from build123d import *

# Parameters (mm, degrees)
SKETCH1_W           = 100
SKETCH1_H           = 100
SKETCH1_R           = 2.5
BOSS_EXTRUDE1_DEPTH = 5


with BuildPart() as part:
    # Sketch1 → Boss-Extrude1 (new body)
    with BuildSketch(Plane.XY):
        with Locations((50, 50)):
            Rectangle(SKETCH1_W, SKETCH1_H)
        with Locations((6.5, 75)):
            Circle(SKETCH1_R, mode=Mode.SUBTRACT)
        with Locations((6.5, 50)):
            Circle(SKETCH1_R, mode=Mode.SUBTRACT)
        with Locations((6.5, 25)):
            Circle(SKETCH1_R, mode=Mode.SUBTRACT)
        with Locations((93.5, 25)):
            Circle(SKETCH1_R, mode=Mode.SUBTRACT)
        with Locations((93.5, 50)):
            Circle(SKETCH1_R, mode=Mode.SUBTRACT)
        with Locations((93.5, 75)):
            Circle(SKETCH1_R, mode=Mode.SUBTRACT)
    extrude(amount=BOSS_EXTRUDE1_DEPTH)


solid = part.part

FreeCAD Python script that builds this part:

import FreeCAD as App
import Part
import Sketcher

V = App.Vector
Q = App.Units.Quantity

doc = App.newDocument("Part")
body = doc.addObject("PartDesign::Body", "Body")

# Sketch on XY plane
sketch1 = doc.addObject("Sketcher::SketchObject", "Sketch")
body.addObject(sketch1)
sketch1.AttachmentSupport = (doc.XY_Plane, [""])
sketch1.MapMode = "FlatFace"
sketch1.addGeometry([
    Part.LineSegment(V(0, 100, 0), V(0, 0, 0)),  # 0
    Part.LineSegment(V(0, 0, 0), V(100, 0, 0)),  # 1
    Part.LineSegment(V(100, 0, 0), V(100, 100, 0)),  # 2
    Part.LineSegment(V(100, 100, 0), V(0, 100, 0)),  # 3
    Part.Circle(V(6.5, 25, 0), V(0, 0, 1), 2.5),  # 4
    Part.Circle(V(93.5, 25, 0), V(0, 0, 1), 2.5),  # 5
    Part.Circle(V(6.5, 50, 0), V(0, 0, 1), 2.5),  # 6
    Part.Circle(V(6.5, 75, 0), V(0, 0, 1), 2.5),  # 7
    Part.Circle(V(93.5, 50, 0), V(0, 0, 1), 2.5),  # 8
    Part.Circle(V(93.5, 75, 0), V(0, 0, 1), 2.5),  # 9
], False)
sketch1.addConstraint([
    Sketcher.Constraint("Coincident", 0, 2, 1, 1),
    Sketcher.Constraint("Coincident", 1, 2, 2, 1),
    Sketcher.Constraint("Coincident", 2, 2, 3, 1),
    Sketcher.Constraint("Coincident", 3, 2, 0, 1),
    Sketcher.Constraint("Vertical", 0),
    Sketcher.Constraint("Horizontal", 1),
    Sketcher.Constraint("Vertical", 2),
    Sketcher.Constraint("Horizontal", 3),
    Sketcher.Constraint("Coincident", 0, 2, -1, 1),
    Sketcher.Constraint("Equal", 4, 5),
    Sketcher.Constraint("Equal", 5, 6),
    Sketcher.Constraint("Equal", 6, 7),
    Sketcher.Constraint("Equal", 7, 8),
    Sketcher.Constraint("Equal", 8, 9),
    Sketcher.Constraint("Horizontal", 4, 3, 5, 3),
    Sketcher.Constraint("Horizontal", 6, 3, 8, 3),
    Sketcher.Constraint("Horizontal", 7, 3, 9, 3),
    Sketcher.Constraint("Vertical", 4, 3, 6, 3),
    Sketcher.Constraint("Vertical", 6, 3, 7, 3),
    Sketcher.Constraint("Vertical", 5, 3, 8, 3),
    Sketcher.Constraint("Vertical", 8, 3, 9, 3),
    Sketcher.Constraint("Equal", 3, 0),
    Sketcher.Constraint("Diameter", 4, Q("5 mm")),
    Sketcher.Constraint("DistanceX", 1, 1, 1, 2, Q("100 mm")),
    Sketcher.Constraint("DistanceY", -1, 1, 4, 3, Q("25 mm")),
    Sketcher.Constraint("DistanceY", -1, 1, 6, 3, Q("50 mm")),
    Sketcher.Constraint("DistanceY", -1, 1, 7, 3, Q("75 mm")),
    Sketcher.Constraint("DistanceX", 4, 3, 5, 3, Q("87 mm")),
    Sketcher.Constraint("DistanceX", -1, 1, 4, 3, Q("6.5 mm")),
])
pad1 = doc.addObject("PartDesign::Pad", "Pad")
body.addObject(pad1)
pad1.Profile = sketch1
pad1.Length = 5

doc.recompute()
